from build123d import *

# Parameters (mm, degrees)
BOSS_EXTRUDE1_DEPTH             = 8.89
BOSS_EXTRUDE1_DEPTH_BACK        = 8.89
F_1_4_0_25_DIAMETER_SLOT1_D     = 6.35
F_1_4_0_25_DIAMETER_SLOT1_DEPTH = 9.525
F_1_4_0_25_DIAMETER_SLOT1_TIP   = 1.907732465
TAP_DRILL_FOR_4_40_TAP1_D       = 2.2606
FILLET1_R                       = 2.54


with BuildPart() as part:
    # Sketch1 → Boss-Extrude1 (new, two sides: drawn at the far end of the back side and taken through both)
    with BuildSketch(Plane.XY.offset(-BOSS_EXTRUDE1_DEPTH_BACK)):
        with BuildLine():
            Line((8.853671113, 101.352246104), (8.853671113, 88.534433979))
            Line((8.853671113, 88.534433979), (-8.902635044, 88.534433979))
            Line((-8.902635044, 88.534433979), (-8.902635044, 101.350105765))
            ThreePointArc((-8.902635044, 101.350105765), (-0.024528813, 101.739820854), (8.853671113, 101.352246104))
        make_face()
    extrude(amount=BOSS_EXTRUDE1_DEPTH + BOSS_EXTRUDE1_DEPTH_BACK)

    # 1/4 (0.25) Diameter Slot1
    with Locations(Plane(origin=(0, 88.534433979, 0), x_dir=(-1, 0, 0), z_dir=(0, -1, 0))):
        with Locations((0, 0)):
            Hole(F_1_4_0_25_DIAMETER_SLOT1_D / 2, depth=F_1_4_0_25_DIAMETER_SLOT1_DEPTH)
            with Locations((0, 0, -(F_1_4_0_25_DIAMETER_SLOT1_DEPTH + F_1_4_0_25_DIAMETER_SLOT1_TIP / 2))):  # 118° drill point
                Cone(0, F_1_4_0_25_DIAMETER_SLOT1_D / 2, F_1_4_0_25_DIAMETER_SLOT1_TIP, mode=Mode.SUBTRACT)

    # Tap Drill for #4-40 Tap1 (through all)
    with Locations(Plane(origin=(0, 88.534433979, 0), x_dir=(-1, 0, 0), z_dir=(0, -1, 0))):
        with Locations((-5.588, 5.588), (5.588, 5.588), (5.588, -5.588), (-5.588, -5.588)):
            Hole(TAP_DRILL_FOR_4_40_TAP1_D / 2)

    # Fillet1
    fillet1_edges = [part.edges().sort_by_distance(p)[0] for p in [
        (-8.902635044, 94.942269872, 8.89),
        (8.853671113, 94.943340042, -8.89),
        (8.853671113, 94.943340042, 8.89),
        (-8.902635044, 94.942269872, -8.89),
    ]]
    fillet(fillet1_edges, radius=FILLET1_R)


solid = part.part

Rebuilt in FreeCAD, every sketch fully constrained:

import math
import FreeCAD as App
import Part
import Sketcher

V = App.Vector
Q = App.Units.Quantity


def edges_at(feature, points):
    """Names of the edges that pass closest to the given points."""
    edges = feature.Shape.Edges
    near = lambda p: min(range(len(edges)), key=lambda i: edges[i].distToShape(Part.Vertex(*p))[0])
    return sorted({f"Edge{near(p) + 1}" for p in points})

doc = App.newDocument("Part")
body = doc.addObject("PartDesign::Body", "Body")

# Sketch on XY plane
sketch1 = body.newObject("Sketcher::SketchObject", "Sketch")
sketch1.AttachmentSupport = (doc.getObject("XY_Plane"), [""])
sketch1.MapMode = "FlatFace"
sketch1.addGeometry([
    Part.LineSegment(V(8.853671, 88.534434, 0), V(8.853671, 101.352246, 0)),
    Part.ArcOfCircle(Part.Circle(V(-0.012282, 0.139822, 0), V(0, 0, 1), 101.6), math.radians(84.993813), math.radians(95.02)),
    Part.LineSegment(V(-8.902635, 101.350106, 0), V(-8.902635, 88.534434, 0)),
    Part.LineSegment(V(-8.902635, 88.534434, 0), V(8.853671, 88.534434, 0)),
], False)
sketch1.addConstraint([
    Sketcher.Constraint("Coincident", 0, 2, 1, 1),
    Sketcher.Constraint("Coincident", 1, 2, 2, 1),
    Sketcher.Constraint("Coincident", 2, 2, 3, 1),
    Sketcher.Constraint("Coincident", 3, 2, 0, 1),
    Sketcher.Constraint("Vertical", 0),
    Sketcher.Constraint("Vertical", 2),
    Sketcher.Constraint("Horizontal", 3),
    Sketcher.Constraint("Radius", 1, Q("4 in")),
    Sketcher.Constraint("DistanceY", 2, 2, 2, 1, Q("12.815672 mm")),
    Sketcher.Constraint("DistanceX", 3, 1, 3, 2, Q("17.756306 mm")),
    Sketcher.Constraint("DistanceY", 0, 1, 0, 2, Q("12.817812 mm")),
    Sketcher.Constraint("DistanceX", 1, 3, -1, 1, Q("0.012282 mm")),
    Sketcher.Constraint("DistanceY", -1, 1, 1, 3, Q("0.139822 mm")),
])
pad1 = body.newObject("PartDesign::Pad", "Pad")
pad1.Profile = sketch1
pad1.Type = "TwoLengths"
pad1.Length = Q("0.35 in")
pad1.Length2 = Q("0.35 in")

# Sketch on XZ plane
sketch2 = body.newObject("Sketcher::SketchObject", "Sketch001")
sketch2.AttachmentSupport = (doc.getObject("XZ_Plane"), [""])
sketch2.MapMode = "FlatFace"
sketch2.AttachmentOffset = App.Placement(V(0, 0, -88.534434), App.Rotation())
sketch2.addGeometry(Part.Circle(V(0, 0, 0), V(0, 0, 1), 3.175), False)
sketch2.addConstraint([
    Sketcher.Constraint("Coincident", 0, 3, -1, 1),
    Sketcher.Constraint("Diameter", 0, Q("0.25 in")),
])
doc.recompute()
hole = body.newObject("PartDesign::Hole", "Hole")
hole.Profile = sketch2
hole.ThreadType = "None"
hole.Diameter = Q("0.25 in")
hole.DepthType = "Dimension"
hole.Depth = Q("0.375 in")
hole.DrillPoint = "Angled"
hole.DrillPointAngle = 118

# Sketch on XZ plane
sketch3 = body.newObject("Sketcher::SketchObject", "Sketch002")
sketch3.AttachmentSupport = (doc.getObject("XZ_Plane"), [""])
sketch3.MapMode = "FlatFace"
sketch3.AttachmentOffset = App.Placement(V(0, 0, -88.534434), App.Rotation())
sketch3.addGeometry([
    Part.Circle(V(5.588, -5.588, 0), V(0, 0, 1), 1.1303),
    Part.Circle(V(-5.588, -5.588, 0), V(0, 0, 1), 1.1303),
    Part.Circle(V(-5.588, 5.588, 0), V(0, 0, 1), 1.1303),
    Part.Circle(V(5.588, 5.588, 0), V(0, 0, 1), 1.1303),
], False)
sketch3.addConstraint([
    Sketcher.Constraint("Equal", 0, 1),
    Sketcher.Constraint("Equal", 1, 2),
    Sketcher.Constraint("Equal", 2, 3),
    Sketcher.Constraint("Symmetric", 0, 3, 2, 3, -1, 1),
    Sketcher.Constraint("Symmetric", 1, 3, 3, 3, -1, 1),
    Sketcher.Constraint("Symmetric", 0, 3, 1, 3, -2),
    Sketcher.Constraint("Diameter", 0, Q("0.089 in")),
    Sketcher.Constraint("DistanceX", -1, 1, 0, 3, Q("0.22 in")),
    Sketcher.Constraint("DistanceY", 0, 3, -1, 1, Q("0.22 in")),
])
doc.recompute()
hole2 = body.newObject("PartDesign::Hole", "Hole001")
hole2.Profile = sketch3
hole2.ThreadType = "None"
hole2.Diameter = Q("0.089 in")
hole2.DepthType = "ThroughAll"
doc.recompute()

fillet = body.newObject("PartDesign::Fillet", "Fillet")
fillet.Base = (hole2, edges_at(hole2, [
    (-8.903, 94.942, 8.89),
    (8.854, 94.943, -8.89),
    (8.854, 94.943, 8.89),
    (-8.903, 94.942, -8.89),
]))
fillet.Radius = Q("0.1 in")

doc.recompute()
